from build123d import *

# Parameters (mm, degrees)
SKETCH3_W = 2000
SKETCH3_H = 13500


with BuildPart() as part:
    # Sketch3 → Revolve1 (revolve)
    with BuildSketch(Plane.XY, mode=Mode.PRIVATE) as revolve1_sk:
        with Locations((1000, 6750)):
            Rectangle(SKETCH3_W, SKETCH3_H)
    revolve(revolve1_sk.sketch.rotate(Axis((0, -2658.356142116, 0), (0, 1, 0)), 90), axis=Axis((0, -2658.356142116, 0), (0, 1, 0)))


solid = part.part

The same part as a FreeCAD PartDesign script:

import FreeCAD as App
import Part
import Sketcher

V = App.Vector
Q = App.Units.Quantity


def add_polygon(sketch, points):
    """Adds a closed chain of lines whose ends are joined by coincident constraints."""
    first, n = sketch.GeometryCount, len(points)
    for a, b in zip(points, points[1:] + points[:1]):
        sketch.addGeometry(Part.LineSegment(App.Vector(*a, 0), App.Vector(*b, 0)), False)
    for i in range(n):
        sketch.addConstraint(Sketcher.Constraint("Coincident", first + i, 2, first + (i + 1) % n, 1))

doc = App.newDocument("Part")
params = doc.addObject("Spreadsheet::Sheet", "Params")
for row, (alias, value) in enumerate([
    ("sketch1_width", "2000 mm"),
    ("sketch1_height", "13500 mm"),
    ("revolution_angle", "360 deg"),
], start=1):
    params.set(f"A{row}", alias)
    params.set(f"B{row}", "=" + value)
    params.setAlias(f"B{row}", alias)

body = doc.addObject("PartDesign::Body", "Body")

sketch1 = body.newObject("Sketcher::SketchObject", "Sketch")
sketch1.AttachmentSupport = (doc.getObject("XY_Plane"), [""])
sketch1.MapMode = "FlatFace"
add_polygon(sketch1, [(0, 13500), (0, 0), (2000, 0), (2000, 13500)])
sketch1.addConstraint([
    Sketcher.Constraint("Vertical", 0),
    Sketcher.Constraint("Horizontal", 1),
    Sketcher.Constraint("Vertical", 2),
    Sketcher.Constraint("Horizontal", 3),
    Sketcher.Constraint("Coincident", 0, 2, -1, 1),
    Sketcher.Constraint("DistanceX", 1, 1, 1, 2, Q("2000 mm")),
    Sketcher.Constraint("DistanceY", 0, 2, 0, 1, Q("13500 mm")),
])
sketch1.setExpression("Constraints[9]", "Params.sketch1_width")
sketch1.setExpression("Constraints[10]", "Params.sketch1_height")
revolution = body.newObject("PartDesign::Revolution", "Revolution")
revolution.Profile = sketch1
revolution.ReferenceAxis = (sketch1, ["V_Axis"])
revolution.setExpression("Angle", "Params.revolution_angle")

doc.recompute()
